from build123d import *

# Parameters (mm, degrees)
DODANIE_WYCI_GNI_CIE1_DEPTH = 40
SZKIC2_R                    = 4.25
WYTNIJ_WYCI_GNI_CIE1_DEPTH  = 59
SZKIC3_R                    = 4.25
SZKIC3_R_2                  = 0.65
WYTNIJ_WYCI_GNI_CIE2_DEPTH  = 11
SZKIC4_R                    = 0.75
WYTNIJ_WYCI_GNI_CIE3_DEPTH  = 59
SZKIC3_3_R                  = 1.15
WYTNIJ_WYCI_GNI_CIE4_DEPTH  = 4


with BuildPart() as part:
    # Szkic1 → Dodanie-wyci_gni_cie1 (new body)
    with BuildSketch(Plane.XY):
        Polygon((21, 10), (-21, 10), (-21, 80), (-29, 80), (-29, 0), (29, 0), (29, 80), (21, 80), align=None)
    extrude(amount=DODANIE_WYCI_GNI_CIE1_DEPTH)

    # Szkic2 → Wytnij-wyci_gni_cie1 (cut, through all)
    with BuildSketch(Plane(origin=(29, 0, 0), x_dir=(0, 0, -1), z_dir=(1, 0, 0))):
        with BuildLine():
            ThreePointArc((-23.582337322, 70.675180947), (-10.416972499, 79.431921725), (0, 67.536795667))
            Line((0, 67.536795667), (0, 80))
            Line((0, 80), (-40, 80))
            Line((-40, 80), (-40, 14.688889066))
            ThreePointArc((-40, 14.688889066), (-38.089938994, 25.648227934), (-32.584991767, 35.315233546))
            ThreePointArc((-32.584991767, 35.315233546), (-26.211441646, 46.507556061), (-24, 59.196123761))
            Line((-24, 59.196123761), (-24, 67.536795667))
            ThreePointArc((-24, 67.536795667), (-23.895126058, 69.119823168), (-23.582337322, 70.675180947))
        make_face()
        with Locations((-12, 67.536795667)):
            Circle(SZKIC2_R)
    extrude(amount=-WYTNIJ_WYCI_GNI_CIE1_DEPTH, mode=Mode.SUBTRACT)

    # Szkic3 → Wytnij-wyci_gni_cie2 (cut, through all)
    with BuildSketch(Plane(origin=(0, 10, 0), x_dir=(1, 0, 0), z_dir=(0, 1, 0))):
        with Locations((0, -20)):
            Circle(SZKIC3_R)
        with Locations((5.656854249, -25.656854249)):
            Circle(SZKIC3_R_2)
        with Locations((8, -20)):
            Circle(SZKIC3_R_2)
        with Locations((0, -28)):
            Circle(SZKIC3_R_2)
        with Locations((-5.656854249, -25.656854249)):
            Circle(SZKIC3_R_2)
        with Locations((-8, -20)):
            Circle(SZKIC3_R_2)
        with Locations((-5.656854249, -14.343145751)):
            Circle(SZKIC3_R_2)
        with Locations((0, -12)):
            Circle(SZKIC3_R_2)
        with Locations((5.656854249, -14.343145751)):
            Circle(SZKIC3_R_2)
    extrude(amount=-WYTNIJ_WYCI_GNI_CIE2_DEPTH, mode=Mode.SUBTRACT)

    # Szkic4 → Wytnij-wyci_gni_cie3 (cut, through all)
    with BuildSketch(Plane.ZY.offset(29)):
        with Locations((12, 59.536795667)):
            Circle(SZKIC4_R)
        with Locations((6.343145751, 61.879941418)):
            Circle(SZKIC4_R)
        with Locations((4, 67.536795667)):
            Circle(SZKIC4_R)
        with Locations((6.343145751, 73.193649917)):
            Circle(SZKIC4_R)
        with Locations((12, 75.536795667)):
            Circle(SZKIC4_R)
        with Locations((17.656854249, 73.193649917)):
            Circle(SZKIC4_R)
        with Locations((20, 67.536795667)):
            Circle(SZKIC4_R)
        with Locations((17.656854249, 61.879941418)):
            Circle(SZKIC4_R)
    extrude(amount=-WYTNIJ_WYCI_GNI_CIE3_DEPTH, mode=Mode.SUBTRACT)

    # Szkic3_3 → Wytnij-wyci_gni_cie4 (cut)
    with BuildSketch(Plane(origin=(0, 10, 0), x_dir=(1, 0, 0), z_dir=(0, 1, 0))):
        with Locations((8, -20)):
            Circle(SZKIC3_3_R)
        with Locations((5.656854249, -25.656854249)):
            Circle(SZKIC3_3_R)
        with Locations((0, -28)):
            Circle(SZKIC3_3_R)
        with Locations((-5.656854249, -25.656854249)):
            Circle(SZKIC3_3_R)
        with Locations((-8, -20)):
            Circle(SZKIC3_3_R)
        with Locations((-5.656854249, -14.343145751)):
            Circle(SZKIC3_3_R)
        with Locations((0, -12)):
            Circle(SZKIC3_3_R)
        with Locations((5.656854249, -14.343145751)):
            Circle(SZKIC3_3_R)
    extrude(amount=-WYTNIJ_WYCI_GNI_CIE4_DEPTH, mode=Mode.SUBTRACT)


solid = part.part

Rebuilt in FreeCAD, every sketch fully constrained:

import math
import FreeCAD as App
import Part
import Sketcher

V = App.Vector
Q = App.Units.Quantity

doc = App.newDocument("Part")
body = doc.addObject("PartDesign::Body", "Body")

# Sketch on XY plane
sketch1 = body.newObject("Sketcher::SketchObject", "Sketch")
sketch1.AttachmentSupport = (doc.getObject("XY_Plane"), [""])
sketch1.MapMode = "FlatFace"
sketch1.addGeometry([
    Part.LineSegment(V(21, 10, 0), V(-21, 10, 0)),  # 0
    Part.LineSegment(V(-21, 10, 0), V(-21, 80, 0)),  # 1
    Part.LineSegment(V(-21, 80, 0), V(-29, 80, 0)),  # 2
    Part.LineSegment(V(-29, 80, 0), V(-29, 0, 0)),  # 3
    Part.LineSegment(V(-29, 0, 0), V(29, 0, 0)),  # 4
    Part.LineSegment(V(29, 0, 0), V(29, 80, 0)),  # 5
    Part.LineSegment(V(29, 80, 0), V(21, 80, 0)),  # 6
    Part.LineSegment(V(21, 80, 0), V(21, 10, 0)),  # 7
], False)
sketch1.addConstraint([
    Sketcher.Constraint("Coincident", 0, 2, 1, 1),
    Sketcher.Constraint("Coincident", 1, 2, 2, 1),
    Sketcher.Constraint("Coincident", 2, 2, 3, 1),
    Sketcher.Constraint("Coincident", 3, 2, 4, 1),
    Sketcher.Constraint("Coincident", 4, 2, 5, 1),
    Sketcher.Constraint("Coincident", 5, 2, 6, 1),
    Sketcher.Constraint("Coincident", 6, 2, 7, 1),
    Sketcher.Constraint("Coincident", 7, 2, 0, 1),
    Sketcher.Constraint("Horizontal", 0),
    Sketcher.Constraint("Vertical", 1),
    Sketcher.Constraint("Horizontal", 2),
    Sketcher.Constraint("Vertical", 3),
    Sketcher.Constraint("Horizontal", 4),
    Sketcher.Constraint("Vertical", 5),
    Sketcher.Constraint("Horizontal", 6),
    Sketcher.Constraint("Vertical", 7),
    Sketcher.Constraint("Symmetric", 3, 2, 4, 2, -1, 1),
    Sketcher.Constraint("Symmetric", 1, 2, 6, 2, -2),
    Sketcher.Constraint("DistanceX", 0, 2, 0, 1, Q("42 mm")),
    Sketcher.Constraint("DistanceX", 2, 2, 2, 1, Q("8 mm")),
    Sketcher.Constraint("DistanceY", 1, 1, 1, 2, Q("70 mm")),
    Sketcher.Constraint("DistanceY", 3, 2, 3, 1, Q("80 mm")),
])
pad1 = body.newObject("PartDesign::Pad", "Pad")
pad1.Profile = sketch1
pad1.Length = 40

# Sketch on YZ plane
sketch2 = body.newObject("Sketcher::SketchObject", "Sketch001")
sketch2.AttachmentSupport = (doc.getObject("YZ_Plane"), [""])
sketch2.MapMode = "FlatFace"
sketch2.AttachmentOffset = App.Placement(V(0, 0, 29), App.Rotation())
sketch2.addGeometry([
    Part.LineSegment(V(67.5, 0, 0), V(80, 0, 0)),  # 0
    Part.LineSegment(V(80, 0, 0), V(80, 40, 0)),  # 1
    Part.LineSegment(V(80, 40, 0), V(14.7, 40, 0)),  # 2
    Part.ArcOfCircle(Part.Circle(V(14.7, 7.6, 0), V(0, 0, 1), 32.4), math.radians(50), math.radians(90)),  # 3
    Part.ArcOfCircle(Part.Circle(V(59.2, 61.5, 0), V(0, 0, 1), 37.5), math.radians(-130), math.radians(-90)),  # 4
    Part.LineSegment(V(59.2, 24, 0), V(67.5, 24, 0)),  # 5
    Part.ArcOfCircle(Part.Circle(V(67.5, 12, 0), V(0, 0, 1), 12), math.radians(-90), math.radians(90)),  # 6
    Part.Circle(V(67.5, 12, 0), V(0, 0, 1), 4.2),  # 7
], False)
sketch2.addConstraint([
    Sketcher.Constraint("Coincident", 0, 2, 1, 1),
    Sketcher.Constraint("Coincident", 1, 2, 2, 1),
    Sketcher.Constraint("Tangent", 2, 2, 3, 2),
    Sketcher.Constraint("Tangent", 3, 1, 4, 1),
    Sketcher.Constraint("Tangent", 4, 2, 5, 1),
    Sketcher.Constraint("Tangent", 5, 2, 6, 2),
    Sketcher.Constraint("Tangent", 6, 1, 0, 1),
    Sketcher.Constraint("Horizontal", 0),
    Sketcher.Constraint("Vertical", 1),
    Sketcher.Constraint("Horizontal", 2),
    Sketcher.Constraint("Horizontal", 5),
    Sketcher.Constraint("Coincident", 7, 3, 6, 3),
    Sketcher.Constraint("PointOnObject", 0, 2, -1),
    Sketcher.Constraint("Radius", 6, Q("12 mm")),
    Sketcher.Constraint("Diameter", 7, Q("8.5 mm")),
    Sketcher.Constraint("DistanceY", 1, 1, 1, 2, Q("40 mm")),
    Sketcher.Constraint("DistanceX", -1, 1, 0, 2, Q("80 mm")),
    Sketcher.Constraint("Radius", 3, Q("32.395678 mm")),
    Sketcher.Constraint("Radius", 4, Q("37.507258 mm")),
    Sketcher.Constraint("DistanceX", 2, 2, 2, 1, Q("65.311111 mm")),
    Sketcher.Constraint("DistanceX", 5, 1, 5, 2, Q("8.340672 mm")),
])
pocket1 = body.newObject("PartDesign::Pocket", "Pocket")
pocket1.Profile = sketch2
pocket1.Type = "ThroughAll"

# Sketch on XZ plane
sketch3 = body.newObject("Sketcher::SketchObject", "Sketch002")
sketch3.AttachmentSupport = (doc.getObject("XZ_Plane"), [""])
sketch3.MapMode = "FlatFace"
sketch3.AttachmentOffset = App.Placement(V(0, 0, -10), App.Rotation())
sketch3.addGeometry([
    Part.Circle(V(0, 20, 0), V(0, 0, 1), 4.2),  # 0
    Part.Circle(V(5.7, 25.7, 0), V(0, 0, 1), 0.7),  # 1
    Part.Circle(V(8, 20, 0), V(0, 0, 1), 0.7),  # 2
    Part.Circle(V(0, 28, 0), V(0, 0, 1), 0.7),  # 3
    Part.Circle(V(-5.7, 25.7, 0), V(0, 0, 1), 0.7),  # 4
    Part.Circle(V(-8, 20, 0), V(0, 0, 1), 0.7),  # 5
    Part.Circle(V(-5.7, 14.3, 0), V(0, 0, 1), 0.7),  # 6
    Part.Circle(V(0, 12, 0), V(0, 0, 1), 0.7),  # 7
    Part.Circle(V(5.7, 14.3, 0), V(0, 0, 1), 0.7),  # 8
], False)
sketch3.addConstraint([
    Sketcher.Constraint("Equal", 1, 2),
    Sketcher.Constraint("Equal", 2, 3),
    Sketcher.Constraint("Equal", 3, 4),
    Sketcher.Constraint("Equal", 4, 5),
    Sketcher.Constraint("Equal", 5, 6),
    Sketcher.Constraint("Equal", 6, 7),
    Sketcher.Constraint("Equal", 7, 8),
    Sketcher.Constraint("Symmetric", 1, 3, 4, 3, -2),
    Sketcher.Constraint("Symmetric", 2, 3, 5, 3, -2),
    Sketcher.Constraint("Symmetric", 6, 3, 8, 3, -2),
    Sketcher.Constraint("PointOnObject", 0, 3, -2),
    Sketcher.Constraint("PointOnObject", 3, 3, -2),
    Sketcher.Constraint("PointOnObject", 7, 3, -2),
    Sketcher.Constraint("Horizontal", 0, 3, 2, 3),
    Sketcher.Constraint("Vertical", 4, 3, 6, 3),
    Sketcher.Constraint("Diameter", 0, Q("8.5 mm")),
    Sketcher.Constraint("Diameter", 1, Q("1.3 mm")),
    Sketcher.Constraint("DistanceY", -1, 1, 0, 3, Q("20 mm")),
    Sketcher.Constraint("DistanceX", -1, 1, 2, 3, Q("8 mm")),
    Sketcher.Constraint("DistanceY", -1, 1, 3, 3, Q("28 mm")),
    Sketcher.Constraint("DistanceY", -1, 1, 7, 3, Q("12 mm")),
    Sketcher.Constraint("DistanceX", 4, 3, 1, 3, Q("11.313708 mm")),
    Sketcher.Constraint("DistanceY", 6, 3, 4, 3, Q("11.313708 mm")),
    Sketcher.Constraint("DistanceY", -1, 1, 1, 3, Q("25.656854 mm")),
])
pocket2 = body.newObject("PartDesign::Pocket", "Pocket001")
pocket2.Profile = sketch3
pocket2.Type = "ThroughAll"
pocket2.Reversed = True

# Sketch on YZ plane
sketch4 = body.newObject("Sketcher::SketchObject", "Sketch003")
sketch4.AttachmentSupport = (doc.getObject("YZ_Plane"), [""])
sketch4.MapMode = "FlatFace"
sketch4.AttachmentOffset = App.Placement(V(0, 0, -29), App.Rotation())
sketch4.addGeometry([
    Part.Circle(V(59.5, 12, 0), V(0, 0, 1), 0.8),  # 0
    Part.Circle(V(61.9, 6.3, 0), V(0, 0, 1), 0.8),  # 1
    Part.Circle(V(67.5, 4, 0), V(0, 0, 1), 0.8),  # 2
    Part.Circle(V(73.2, 6.3, 0), V(0, 0, 1), 0.8),  # 3
    Part.Circle(V(75.5, 12, 0), V(0, 0, 1), 0.8),  # 4
    Part.Circle(V(73.2, 17.7, 0), V(0, 0, 1), 0.8),  # 5
    Part.Circle(V(67.5, 20, 0), V(0, 0, 1), 0.8),  # 6
    Part.Circle(V(61.9, 17.7, 0), V(0, 0, 1), 0.8),  # 7
], False)
sketch4.addConstraint([
    Sketcher.Constraint("Equal", 0, 1),
    Sketcher.Constraint("Equal", 1, 2),
    Sketcher.Constraint("Equal", 2, 3),
    Sketcher.Constraint("Equal", 3, 4),
    Sketcher.Constraint("Equal", 4, 5),
    Sketcher.Constraint("Equal", 5, 6),
    Sketcher.Constraint("Equal", 6, 7),
    Sketcher.Constraint("Horizontal", 1, 3, 3, 3),
    Sketcher.Constraint("Horizontal", 0, 3, 4, 3),
    Sketcher.Constraint("Horizontal", 5, 3, 7, 3),
    Sketcher.Constraint("Vertical", 3, 3, 5, 3),
    Sketcher.Constraint("Vertical", 2, 3, 6, 3),
    Sketcher.Constraint("Vertical", 1, 3, 7, 3),
    Sketcher.Constraint("Diameter", 0, Q("1.5 mm")),
    Sketcher.Constraint("DistanceY", -1, 1, 0, 3, Q("12 mm")),
    Sketcher.Constraint("DistanceY", -1, 1, 2, 3, Q("4 mm")),
    Sketcher.Constraint("DistanceY", -1, 1, 6, 3, Q("20 mm")),
    Sketcher.Constraint("DistanceX", 0, 3, 2, 3, Q("8 mm")),
    Sketcher.Constraint("DistanceX", 2, 3, 4, 3, Q("8 mm")),
    Sketcher.Constraint("DistanceX", -1, 1, 1, 3, Q("61.879941 mm")),
    Sketcher.Constraint("DistanceX", -1, 1, 3, 3, Q("73.19365 mm")),
    Sketcher.Constraint("DistanceY", 3, 3, 5, 3, Q("11.313708 mm")),
    Sketcher.Constraint("DistanceX", -1, 1, 0, 3, Q("59.536796 mm")),
    Sketcher.Constraint("DistanceY", -1, 1, 1, 3, Q("6.343146 mm")),
])
pocket3 = body.newObject("PartDesign::Pocket", "Pocket002")
pocket3.Profile = sketch4
pocket3.Type = "ThroughAll"
pocket3.Reversed = True

# Sketch on XZ plane
sketch5 = body.newObject("Sketcher::SketchObject", "Sketch004")
sketch5.AttachmentSupport = (doc.getObject("XZ_Plane"), [""])
sketch5.MapMode = "FlatFace"
sketch5.AttachmentOffset = App.Placement(V(0, 0, -10), App.Rotation())
sketch5.addGeometry([
    Part.Circle(V(8, 20, 0), V(0, 0, 1), 1.1),  # 0
    Part.Circle(V(5.7, 25.7, 0), V(0, 0, 1), 1.1),  # 1
    Part.Circle(V(0, 28, 0), V(0, 0, 1), 1.1),  # 2
    Part.Circle(V(-5.7, 25.7, 0), V(0, 0, 1), 1.1),  # 3
    Part.Circle(V(-8, 20, 0), V(0, 0, 1), 1.1),  # 4
    Part.Circle(V(-5.7, 14.3, 0), V(0, 0, 1), 1.1),  # 5
    Part.Circle(V(0, 12, 0), V(0, 0, 1), 1.1),  # 6
    Part.Circle(V(5.7, 14.3, 0), V(0, 0, 1), 1.1),  # 7
], False)
sketch5.addConstraint([
    Sketcher.Constraint("Equal", 0, 1),
    Sketcher.Constraint("Equal", 1, 2),
    Sketcher.Constraint("Equal", 2, 3),
    Sketcher.Constraint("Equal", 3, 4),
    Sketcher.Constraint("Equal", 4, 5),
    Sketcher.Constraint("Equal", 5, 6),
    Sketcher.Constraint("Equal", 6, 7),
    Sketcher.Constraint("Symmetric", 1, 3, 3, 3, -2),
    Sketcher.Constraint("Symmetric", 0, 3, 4, 3, -2),
    Sketcher.Constraint("Symmetric", 5, 3, 7, 3, -2),
    Sketcher.Constraint("PointOnObject", 2, 3, -2),
    Sketcher.Constraint("PointOnObject", 6, 3, -2),
    Sketcher.Constraint("Vertical", 3, 3, 5, 3),
    Sketcher.Constraint("Diameter", 0, Q("2.3 mm")),
    Sketcher.Constraint("DistanceX", -1, 1, 0, 3, Q("8 mm")),
    Sketcher.Constraint("DistanceY", -1, 1, 0, 3, Q("20 mm")),
    Sketcher.Constraint("DistanceY", -1, 1, 2, 3, Q("28 mm")),
    Sketcher.Constraint("DistanceY", -1, 1, 6, 3, Q("12 mm")),
    Sketcher.Constraint("DistanceX", 3, 3, 1, 3, Q("11.313708 mm")),
    Sketcher.Constraint("DistanceY", 5, 3, 3, 3, Q("11.313708 mm")),
    Sketcher.Constraint("DistanceY", -1, 1, 1, 3, Q("25.656854 mm")),
])
pocket4 = body.newObject("PartDesign::Pocket", "Pocket003")
pocket4.Profile = sketch5
pocket4.Length = 4
pocket4.Reversed = True

doc.recompute()
